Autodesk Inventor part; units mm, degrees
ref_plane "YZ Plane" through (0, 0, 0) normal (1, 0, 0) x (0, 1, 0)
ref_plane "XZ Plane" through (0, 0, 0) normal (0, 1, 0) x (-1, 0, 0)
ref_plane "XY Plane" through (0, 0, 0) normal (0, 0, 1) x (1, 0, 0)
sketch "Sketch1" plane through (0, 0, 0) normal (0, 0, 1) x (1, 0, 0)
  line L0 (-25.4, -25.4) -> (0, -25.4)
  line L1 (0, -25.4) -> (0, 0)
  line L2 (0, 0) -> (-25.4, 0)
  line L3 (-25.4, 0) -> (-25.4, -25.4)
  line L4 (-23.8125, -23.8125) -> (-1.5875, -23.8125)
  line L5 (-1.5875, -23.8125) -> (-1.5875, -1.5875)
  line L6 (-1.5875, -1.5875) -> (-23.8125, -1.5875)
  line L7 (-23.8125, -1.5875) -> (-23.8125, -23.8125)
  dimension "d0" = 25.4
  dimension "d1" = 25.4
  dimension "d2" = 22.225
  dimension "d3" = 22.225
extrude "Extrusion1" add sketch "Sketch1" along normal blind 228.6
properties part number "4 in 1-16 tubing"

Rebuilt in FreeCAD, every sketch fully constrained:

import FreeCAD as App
import Part
import Sketcher

V = App.Vector
Q = App.Units.Quantity

doc = App.newDocument("Part")
body = doc.addObject("PartDesign::Body", "Body")

# Sketch on XY plane
sketch1 = body.newObject("Sketcher::SketchObject", "Sketch")
sketch1.AttachmentSupport = (doc.getObject("XY_Plane"), [""])
sketch1.MapMode = "FlatFace"
sketch1.addGeometry(Part.LineSegment(V(-25, 0, 0), V(-25, -25, 0)), False)
sketch1.addGeometry(Part.LineSegment(V(-25, -25, 0), V(0, -25, 0)), False)
sketch1.addGeometry(Part.LineSegment(V(0, -25, 0), V(0, 0, 0)), False)
sketch1.addGeometry(Part.LineSegment(V(0, 0, 0), V(-25, 0, 0)), False)
sketch1.addGeometry(Part.LineSegment(V(-2, -24, 0), V(-24, -24, 0)), False)
sketch1.addGeometry(Part.LineSegment(V(-24, -24, 0), V(-24, -2, 0)), False)
sketch1.addGeometry(Part.LineSegment(V(-24, -2, 0), V(-2, -2, 0)), False)
sketch1.addGeometry(Part.LineSegment(V(-2, -2, 0), V(-2, -24, 0)), False)
sketch1.addConstraint(Sketcher.Constraint("Coincident", 0, 2, 1, 1))
sketch1.addConstraint(Sketcher.Constraint("Coincident", 1, 2, 2, 1))
sketch1.addConstraint(Sketcher.Constraint("Coincident", 2, 2, 3, 1))
sketch1.addConstraint(Sketcher.Constraint("Coincident", 3, 2, 0, 1))
sketch1.addConstraint(Sketcher.Constraint("Coincident", 4, 2, 5, 1))
sketch1.addConstraint(Sketcher.Constraint("Coincident", 5, 2, 6, 1))
sketch1.addConstraint(Sketcher.Constraint("Coincident", 6, 2, 7, 1))
sketch1.addConstraint(Sketcher.Constraint("Coincident", 7, 2, 4, 1))
sketch1.addConstraint(Sketcher.Constraint("Vertical", 0))
sketch1.addConstraint(Sketcher.Constraint("Horizontal", 1))
sketch1.addConstraint(Sketcher.Constraint("Vertical", 2))
sketch1.addConstraint(Sketcher.Constraint("Horizontal", 3))
sketch1.addConstraint(Sketcher.Constraint("Horizontal", 4))
sketch1.addConstraint(Sketcher.Constraint("Vertical", 5))
sketch1.addConstraint(Sketcher.Constraint("Horizontal", 6))
sketch1.addConstraint(Sketcher.Constraint("Vertical", 7))
sketch1.addConstraint(Sketcher.Constraint("Coincident", 2, 2, -1, 1))
sketch1.addConstraint(Sketcher.Constraint("Equal", 3, 0))
sketch1.addConstraint(Sketcher.Constraint("Equal", 6, 5))
sketch1.addConstraint(Sketcher.Constraint("DistanceX", 1, 1, 1, 2, Q("1 in")))
sketch1.addConstraint(Sketcher.Constraint("DistanceX", 4, 2, 4, 1, Q("0.875 in")))
sketch1.addConstraint(Sketcher.Constraint("DistanceX", 4, 2, -1, 1, Q("0.9375 in")))
sketch1.addConstraint(Sketcher.Constraint("DistanceY", 4, 2, -1, 1, Q("0.9375 in")))
pad1 = body.newObject("PartDesign::Pad", "Pad")
pad1.Profile = sketch1
pad1.Length = Q("9 in")

doc.recompute()
